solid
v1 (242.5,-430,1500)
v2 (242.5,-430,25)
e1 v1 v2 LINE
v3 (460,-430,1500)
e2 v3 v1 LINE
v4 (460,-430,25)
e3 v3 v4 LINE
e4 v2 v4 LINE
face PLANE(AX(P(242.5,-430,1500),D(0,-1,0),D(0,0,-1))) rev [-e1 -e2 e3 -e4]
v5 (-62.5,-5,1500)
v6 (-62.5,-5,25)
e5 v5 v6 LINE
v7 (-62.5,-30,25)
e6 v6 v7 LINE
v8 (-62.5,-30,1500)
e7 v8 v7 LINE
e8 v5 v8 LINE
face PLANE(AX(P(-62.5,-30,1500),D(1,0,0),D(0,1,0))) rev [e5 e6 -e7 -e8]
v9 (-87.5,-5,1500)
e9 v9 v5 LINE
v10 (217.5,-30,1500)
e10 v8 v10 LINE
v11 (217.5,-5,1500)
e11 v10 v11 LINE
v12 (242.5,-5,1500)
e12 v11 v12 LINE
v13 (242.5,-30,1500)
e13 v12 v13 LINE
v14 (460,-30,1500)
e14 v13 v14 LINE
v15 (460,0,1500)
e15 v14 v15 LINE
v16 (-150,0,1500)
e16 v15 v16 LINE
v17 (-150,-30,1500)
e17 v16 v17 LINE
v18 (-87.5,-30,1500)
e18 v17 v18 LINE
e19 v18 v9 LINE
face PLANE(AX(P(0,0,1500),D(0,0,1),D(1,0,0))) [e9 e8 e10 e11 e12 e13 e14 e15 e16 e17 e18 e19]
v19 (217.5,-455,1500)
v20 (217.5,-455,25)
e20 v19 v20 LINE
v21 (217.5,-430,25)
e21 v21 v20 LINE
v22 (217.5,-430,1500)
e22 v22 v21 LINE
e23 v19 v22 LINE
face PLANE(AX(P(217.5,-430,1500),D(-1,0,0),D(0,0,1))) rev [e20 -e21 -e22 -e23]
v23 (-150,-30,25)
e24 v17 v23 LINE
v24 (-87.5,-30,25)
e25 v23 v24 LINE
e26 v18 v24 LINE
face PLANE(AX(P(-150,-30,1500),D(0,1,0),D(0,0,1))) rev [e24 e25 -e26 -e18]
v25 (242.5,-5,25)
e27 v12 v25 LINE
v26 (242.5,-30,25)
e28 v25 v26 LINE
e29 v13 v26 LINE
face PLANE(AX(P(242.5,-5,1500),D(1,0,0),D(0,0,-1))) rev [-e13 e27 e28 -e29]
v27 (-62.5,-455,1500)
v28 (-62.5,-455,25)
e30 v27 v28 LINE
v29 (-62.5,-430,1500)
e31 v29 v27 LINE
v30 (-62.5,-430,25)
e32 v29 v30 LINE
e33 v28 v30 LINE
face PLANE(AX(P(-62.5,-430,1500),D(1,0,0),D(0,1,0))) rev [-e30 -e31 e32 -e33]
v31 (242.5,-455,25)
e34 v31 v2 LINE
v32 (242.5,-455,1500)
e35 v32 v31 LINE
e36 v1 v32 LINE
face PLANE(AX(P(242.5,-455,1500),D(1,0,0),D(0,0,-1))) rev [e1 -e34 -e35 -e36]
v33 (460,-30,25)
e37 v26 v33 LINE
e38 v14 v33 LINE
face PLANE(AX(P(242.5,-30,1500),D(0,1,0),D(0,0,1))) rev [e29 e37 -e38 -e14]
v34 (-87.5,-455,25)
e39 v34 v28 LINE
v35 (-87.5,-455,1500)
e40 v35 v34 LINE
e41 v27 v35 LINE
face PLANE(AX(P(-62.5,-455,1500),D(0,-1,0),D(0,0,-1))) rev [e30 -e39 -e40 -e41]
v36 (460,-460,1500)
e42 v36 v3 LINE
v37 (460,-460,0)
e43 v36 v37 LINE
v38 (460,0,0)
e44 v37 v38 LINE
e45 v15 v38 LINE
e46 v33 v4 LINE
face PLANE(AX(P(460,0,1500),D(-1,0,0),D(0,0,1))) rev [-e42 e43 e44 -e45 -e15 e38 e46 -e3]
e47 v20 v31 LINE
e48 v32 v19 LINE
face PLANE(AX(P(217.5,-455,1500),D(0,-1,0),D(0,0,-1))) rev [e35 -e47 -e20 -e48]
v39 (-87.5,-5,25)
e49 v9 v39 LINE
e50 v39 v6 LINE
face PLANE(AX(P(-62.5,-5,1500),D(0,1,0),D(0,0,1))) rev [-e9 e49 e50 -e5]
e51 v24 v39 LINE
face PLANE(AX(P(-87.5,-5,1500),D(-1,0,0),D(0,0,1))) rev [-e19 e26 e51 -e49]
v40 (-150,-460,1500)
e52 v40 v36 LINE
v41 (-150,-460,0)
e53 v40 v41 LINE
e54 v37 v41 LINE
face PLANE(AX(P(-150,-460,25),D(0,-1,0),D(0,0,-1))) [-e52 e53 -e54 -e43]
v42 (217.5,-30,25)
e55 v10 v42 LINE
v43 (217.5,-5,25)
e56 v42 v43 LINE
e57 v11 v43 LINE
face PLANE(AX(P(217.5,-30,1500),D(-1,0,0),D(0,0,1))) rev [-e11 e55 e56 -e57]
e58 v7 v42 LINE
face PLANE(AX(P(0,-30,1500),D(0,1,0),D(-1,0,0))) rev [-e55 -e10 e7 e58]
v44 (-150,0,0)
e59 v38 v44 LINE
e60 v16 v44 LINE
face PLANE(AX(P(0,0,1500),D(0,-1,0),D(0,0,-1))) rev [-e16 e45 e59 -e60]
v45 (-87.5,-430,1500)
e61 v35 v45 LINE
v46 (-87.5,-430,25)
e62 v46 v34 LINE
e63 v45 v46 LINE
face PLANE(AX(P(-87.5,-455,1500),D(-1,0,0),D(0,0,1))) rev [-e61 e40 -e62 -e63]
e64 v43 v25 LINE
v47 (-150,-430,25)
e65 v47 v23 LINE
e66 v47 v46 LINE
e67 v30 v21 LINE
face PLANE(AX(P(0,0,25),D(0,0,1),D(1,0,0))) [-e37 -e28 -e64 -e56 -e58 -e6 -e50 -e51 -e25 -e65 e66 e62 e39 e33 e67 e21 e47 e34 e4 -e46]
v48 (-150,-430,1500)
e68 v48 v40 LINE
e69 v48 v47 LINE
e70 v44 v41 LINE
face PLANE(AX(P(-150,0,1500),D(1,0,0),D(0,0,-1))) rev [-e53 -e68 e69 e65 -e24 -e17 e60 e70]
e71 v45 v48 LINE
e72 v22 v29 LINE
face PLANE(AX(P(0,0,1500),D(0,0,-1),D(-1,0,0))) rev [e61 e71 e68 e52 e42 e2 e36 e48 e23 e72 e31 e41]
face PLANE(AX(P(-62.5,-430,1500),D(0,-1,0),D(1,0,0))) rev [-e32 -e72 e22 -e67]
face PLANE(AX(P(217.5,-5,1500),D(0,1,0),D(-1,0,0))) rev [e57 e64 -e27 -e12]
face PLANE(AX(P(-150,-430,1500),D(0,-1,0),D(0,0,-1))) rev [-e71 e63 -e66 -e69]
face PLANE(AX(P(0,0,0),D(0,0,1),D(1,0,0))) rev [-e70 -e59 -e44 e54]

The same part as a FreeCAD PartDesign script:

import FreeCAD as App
import Part
import Sketcher
from FreeCAD import Vector

doc = App.newDocument("Part")
params = doc.addObject("Spreadsheet::Sheet", "Params")
for row, (alias, value) in enumerate([
    ("sketch1_width", "25 mm"),
    ("sketch1_width2", "610 mm"),
    ("sketch1_width3", "280 mm"),
    ("sketch1_height", "30 mm"),
    ("sketch1_width4", "217.5 mm"),
    ("pad1_length", "1500 mm"),
    ("sketch2_width", "280 mm"),
    ("sketch2_width2", "25 mm"),
    ("sketch2_width3", "610 mm"),
    ("sketch2_height", "30 mm"),
    ("sketch2_width4", "62.5 mm"),
    ("pad2_length", "1500 mm"),
    ("sketch3_width", "610 mm"),
    ("sketch3_height", "460 mm"),
    ("pad3_length", "25 mm"),
], start=1):
    params.set(f"A{row}", alias)
    params.set(f"B{row}", "=" + value)
    params.setAlias(f"B{row}", alias)

body = doc.addObject("PartDesign::Body", "Body")

sketch1 = body.newObject("Sketcher::SketchObject", "Sketch")
sketch1.AttachmentSupport = (doc.getObject("XY_Plane"), [""])
sketch1.MapMode = "FlatFace"
sketch1.addGeometry(Part.LineSegment(Vector(217.5, -30, 0), Vector(217.5, -5, 0)), False)
sketch1.addGeometry(Part.LineSegment(Vector(217.5, -5, 0), Vector(242.5, -5, 0)), False)
sketch1.addGeometry(Part.LineSegment(Vector(242.5, -5, 0), Vector(242.5, -30, 0)), False)
sketch1.addGeometry(Part.LineSegment(Vector(242.5, -30, 0), Vector(460, -30, 0)), False)
sketch1.addGeometry(Part.LineSegment(Vector(460, -30, 0), Vector(460, 0, 0)), False)
sketch1.addGeometry(Part.LineSegment(Vector(460, 0, 0), Vector(-150, 0, 0)), False)
sketch1.addGeometry(Part.LineSegment(Vector(-150, 0, 0), Vector(-150, -30, 0)), False)
sketch1.addGeometry(Part.LineSegment(Vector(-150, -30, 0), Vector(-87.5, -30, 0)), False)
sketch1.addGeometry(Part.LineSegment(Vector(-87.5, -30, 0), Vector(-87.5, -5, 0)), False)
sketch1.addGeometry(Part.LineSegment(Vector(-87.5, -5, 0), Vector(-62.5, -5, 0)), False)
sketch1.addGeometry(Part.LineSegment(Vector(-62.5, -5, 0), Vector(-62.5, -30, 0)), False)
sketch1.addGeometry(Part.LineSegment(Vector(-62.5, -30, 0), Vector(217.5, -30, 0)), False)
sketch1.addConstraint(Sketcher.Constraint("Coincident", 0, 2, 1, 1))
sketch1.addConstraint(Sketcher.Constraint("Coincident", 1, 2, 2, 1))
sketch1.addConstraint(Sketcher.Constraint("Coincident", 2, 2, 3, 1))
sketch1.addConstraint(Sketcher.Constraint("Coincident", 3, 2, 4, 1))
sketch1.addConstraint(Sketcher.Constraint("Coincident", 4, 2, 5, 1))
sketch1.addConstraint(Sketcher.Constraint("Coincident", 5, 2, 6, 1))
sketch1.addConstraint(Sketcher.Constraint("Coincident", 6, 2, 7, 1))
sketch1.addConstraint(Sketcher.Constraint("Coincident", 7, 2, 8, 1))
sketch1.addConstraint(Sketcher.Constraint("Coincident", 8, 2, 9, 1))
sketch1.addConstraint(Sketcher.Constraint("Coincident", 9, 2, 10, 1))
sketch1.addConstraint(Sketcher.Constraint("Coincident", 10, 2, 11, 1))
sketch1.addConstraint(Sketcher.Constraint("Coincident", 11, 2, 0, 1))
sketch1.addConstraint(Sketcher.Constraint("Vertical", 0))
sketch1.addConstraint(Sketcher.Constraint("Horizontal", 1))
sketch1.addConstraint(Sketcher.Constraint("Vertical", 2))
sketch1.addConstraint(Sketcher.Constraint("Horizontal", 3))
sketch1.addConstraint(Sketcher.Constraint("Vertical", 4))
sketch1.addConstraint(Sketcher.Constraint("Horizontal", 5))
sketch1.addConstraint(Sketcher.Constraint("Vertical", 6))
sketch1.addConstraint(Sketcher.Constraint("Horizontal", 7))
sketch1.addConstraint(Sketcher.Constraint("Vertical", 8))
sketch1.addConstraint(Sketcher.Constraint("Horizontal", 9))
sketch1.addConstraint(Sketcher.Constraint("Vertical", 10))
sketch1.addConstraint(Sketcher.Constraint("Horizontal", 11))
sketch1.addConstraint(Sketcher.Constraint("PointOnObject", 4, 2, -1))
sketch1.addConstraint(Sketcher.Constraint("Horizontal", 3, 2, 6, 2))
sketch1.addConstraint(Sketcher.Constraint("Horizontal", 1, 2, 8, 2))
sketch1.addConstraint(Sketcher.Constraint("Horizontal", 7, 2, 10, 2))
sketch1.addConstraint(Sketcher.Constraint("Equal", 1, 9))
sketch1.addConstraint(Sketcher.Constraint("Equal", 9, 0))
sketch1.addConstraint(Sketcher.Constraint("DistanceX", 1, 1, 1, 2, 25.0))
sketch1.addConstraint(Sketcher.Constraint("DistanceX", 5, 2, 5, 1, 610.0))
sketch1.addConstraint(Sketcher.Constraint("DistanceX", 11, 1, 11, 2, 280.0))
sketch1.addConstraint(Sketcher.Constraint("DistanceY", 4, 1, 4, 2, 30.0))
sketch1.addConstraint(Sketcher.Constraint("DistanceX", 3, 1, 3, 2, 217.5))
sketch1.addConstraint(Sketcher.Constraint("DistanceX", -1, 1, 3, 2, 460.0))
sketch1.setExpression("Constraints[30]", "Params.sketch1_width")
sketch1.setExpression("Constraints[31]", "Params.sketch1_width2")
sketch1.setExpression("Constraints[32]", "Params.sketch1_width3")
sketch1.setExpression("Constraints[33]", "Params.sketch1_height")
sketch1.setExpression("Constraints[34]", "Params.sketch1_width4")
pad1 = body.newObject("PartDesign::Pad", "Pad")
pad1.Profile = sketch1
pad1.setExpression("Length", "Params.pad1_length")
body2 = doc.addObject("PartDesign::Body", "Body001")

sketch2 = body2.newObject("Sketcher::SketchObject", "Sketch001")
sketch2.AttachmentSupport = (doc.getObject("XY_Plane001"), [""])
sketch2.MapMode = "FlatFace"
sketch2.addGeometry(Part.LineSegment(Vector(217.5, -430, 0), Vector(-62.5, -430, 0)), False)
sketch2.addGeometry(Part.LineSegment(Vector(-62.5, -430, 0), Vector(-62.5, -455, 0)), False)
sketch2.addGeometry(Part.LineSegment(Vector(-62.5, -455, 0), Vector(-87.5, -455, 0)), False)
sketch2.addGeometry(Part.LineSegment(Vector(-87.5, -455, 0), Vector(-87.5, -430, 0)), False)
sketch2.addGeometry(Part.LineSegment(Vector(-87.5, -430, 0), Vector(-150, -430, 0)), False)
sketch2.addGeometry(Part.LineSegment(Vector(-150, -430, 0), Vector(-150, -460, 0)), False)
sketch2.addGeometry(Part.LineSegment(Vector(-150, -460, 0), Vector(460, -460, 0)), False)
sketch2.addGeometry(Part.LineSegment(Vector(460, -460, 0), Vector(460, -430, 0)), False)
sketch2.addGeometry(Part.LineSegment(Vector(460, -430, 0), Vector(242.5, -430, 0)), False)
sketch2.addGeometry(Part.LineSegment(Vector(242.5, -430, 0), Vector(242.5, -455, 0)), False)
sketch2.addGeometry(Part.LineSegment(Vector(242.5, -455, 0), Vector(217.5, -455, 0)), False)
sketch2.addGeometry(Part.LineSegment(Vector(217.5, -455, 0), Vector(217.5, -430, 0)), False)
sketch2.addConstraint(Sketcher.Constraint("Coincident", 0, 2, 1, 1))
sketch2.addConstraint(Sketcher.Constraint("Coincident", 1, 2, 2, 1))
sketch2.addConstraint(Sketcher.Constraint("Coincident", 2, 2, 3, 1))
sketch2.addConstraint(Sketcher.Constraint("Coincident", 3, 2, 4, 1))
sketch2.addConstraint(Sketcher.Constraint("Coincident", 4, 2, 5, 1))
sketch2.addConstraint(Sketcher.Constraint("Coincident", 5, 2, 6, 1))
sketch2.addConstraint(Sketcher.Constraint("Coincident", 6, 2, 7, 1))
sketch2.addConstraint(Sketcher.Constraint("Coincident", 7, 2, 8, 1))
sketch2.addConstraint(Sketcher.Constraint("Coincident", 8, 2, 9, 1))
sketch2.addConstraint(Sketcher.Constraint("Coincident", 9, 2, 10, 1))
sketch2.addConstraint(Sketcher.Constraint("Coincident", 10, 2, 11, 1))
sketch2.addConstraint(Sketcher.Constraint("Coincident", 11, 2, 0, 1))
sketch2.addConstraint(Sketcher.Constraint("Horizontal", 0))
sketch2.addConstraint(Sketcher.Constraint("Vertical", 1))
sketch2.addConstraint(Sketcher.Constraint("Horizontal", 2))
sketch2.addConstraint(Sketcher.Constraint("Vertical", 3))
sketch2.addConstraint(Sketcher.Constraint("Horizontal", 4))
sketch2.addConstraint(Sketcher.Constraint("Vertical", 5))
sketch2.addConstraint(Sketcher.Constraint("Horizontal", 6))
sketch2.addConstraint(Sketcher.Constraint("Vertical", 7))
sketch2.addConstraint(Sketcher.Constraint("Horizontal", 8))
sketch2.addConstraint(Sketcher.Constraint("Vertical", 9))
sketch2.addConstraint(Sketcher.Constraint("Horizontal", 10))
sketch2.addConstraint(Sketcher.Constraint("Vertical", 11))
sketch2.addConstraint(Sketcher.Constraint("Horizontal", 0, 2, 3, 2))
sketch2.addConstraint(Sketcher.Constraint("Horizontal", 4, 2, 7, 2))
sketch2.addConstraint(Sketcher.Constraint("Horizontal", 2, 2, 9, 2))
sketch2.addConstraint(Sketcher.Constraint("Equal", 2, 10))
sketch2.addConstraint(Sketcher.Constraint("Equal", 10, 1))
sketch2.addConstraint(Sketcher.Constraint("DistanceX", 0, 2, 0, 1, 280.0))
sketch2.addConstraint(Sketcher.Constraint("DistanceX", 2, 2, 2, 1, 25.0))
sketch2.addConstraint(Sketcher.Constraint("DistanceX", 6, 1, 6, 2, 610.0))
sketch2.addConstraint(Sketcher.Constraint("DistanceY", 5, 2, 5, 1, 30.0))
sketch2.addConstraint(Sketcher.Constraint("DistanceX", 4, 2, 4, 1, 62.5))
sketch2.addConstraint(Sketcher.Constraint("DistanceY", 0, 2, -1, 1, 430.0))
sketch2.addConstraint(Sketcher.Constraint("DistanceX", 4, 2, -1, 1, 150.0))
sketch2.setExpression("Constraints[29]", "Params.sketch2_width")
sketch2.setExpression("Constraints[30]", "Params.sketch2_width2")
sketch2.setExpression("Constraints[31]", "Params.sketch2_width3")
sketch2.setExpression("Constraints[32]", "Params.sketch2_height")
sketch2.setExpression("Constraints[33]", "Params.sketch2_width4")
pad2 = body2.newObject("PartDesign::Pad", "Pad001")
pad2.Profile = sketch2
pad2.setExpression("Length", "Params.pad2_length")
body.AllowCompound = True
doc.recompute()

boolean = body.newObject("PartDesign::Boolean", "Boolean")
boolean.Type = "Fuse"
boolean.addObjects([body2])

sketch3 = body.newObject("Sketcher::SketchObject", "Sketch002")
sketch3.AttachmentSupport = (doc.getObject("XY_Plane"), [""])
sketch3.MapMode = "FlatFace"
sketch3.addGeometry(Part.LineSegment(Vector(460, 0, 0), Vector(460, -460, 0)), False)
sketch3.addGeometry(Part.LineSegment(Vector(460, -460, 0), Vector(-150, -460, 0)), False)
sketch3.addGeometry(Part.LineSegment(Vector(-150, -460, 0), Vector(-150, 0, 0)), False)
sketch3.addGeometry(Part.LineSegment(Vector(-150, 0, 0), Vector(460, 0, 0)), False)
sketch3.addConstraint(Sketcher.Constraint("Coincident", 0, 2, 1, 1))
sketch3.addConstraint(Sketcher.Constraint("Coincident", 1, 2, 2, 1))
sketch3.addConstraint(Sketcher.Constraint("Coincident", 2, 2, 3, 1))
sketch3.addConstraint(Sketcher.Constraint("Coincident", 3, 2, 0, 1))
sketch3.addConstraint(Sketcher.Constraint("Vertical", 0))
sketch3.addConstraint(Sketcher.Constraint("Horizontal", 1))
sketch3.addConstraint(Sketcher.Constraint("Vertical", 2))
sketch3.addConstraint(Sketcher.Constraint("Horizontal", 3))
sketch3.addConstraint(Sketcher.Constraint("PointOnObject", 2, 2, -1))
sketch3.addConstraint(Sketcher.Constraint("DistanceX", 1, 2, 1, 1, 610.0))
sketch3.addConstraint(Sketcher.Constraint("DistanceY", 0, 2, 0, 1, 460.0))
sketch3.addConstraint(Sketcher.Constraint("DistanceX", -1, 1, 0, 2, 460.0))
sketch3.setExpression("Constraints[9]", "Params.sketch3_width")
sketch3.setExpression("Constraints[10]", "Params.sketch3_height")
pad3 = body.newObject("PartDesign::Pad", "Pad002")
pad3.Profile = sketch3
pad3.setExpression("Length", "Params.pad3_length")

doc.recompute()
